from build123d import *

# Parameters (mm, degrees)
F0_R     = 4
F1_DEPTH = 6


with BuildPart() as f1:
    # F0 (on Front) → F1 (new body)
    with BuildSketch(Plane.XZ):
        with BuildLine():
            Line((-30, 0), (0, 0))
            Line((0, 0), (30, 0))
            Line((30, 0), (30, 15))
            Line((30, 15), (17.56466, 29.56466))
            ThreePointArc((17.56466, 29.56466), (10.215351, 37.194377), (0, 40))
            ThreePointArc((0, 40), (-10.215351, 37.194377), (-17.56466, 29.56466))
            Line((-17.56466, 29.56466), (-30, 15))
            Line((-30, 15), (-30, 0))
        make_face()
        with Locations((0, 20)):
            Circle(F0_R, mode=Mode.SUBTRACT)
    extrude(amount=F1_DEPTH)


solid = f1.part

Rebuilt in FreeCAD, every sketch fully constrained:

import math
import FreeCAD as App
import Part
import Sketcher
from FreeCAD import Vector
Q = App.Units.Quantity

doc = App.newDocument("Part")
params = doc.addObject("Spreadsheet::Sheet", "Params")
for row, (alias, value) in enumerate([
    ("sketch1_diameter", "8 mm"),
    ("sketch1_radius", "20.000001 mm"),
    ("sketch1_width", "60 mm"),
    ("sketch1_height", "15 mm"),
    ("pad1_length", "6 mm"),
], start=1):
    params.set(f"A{row}", alias)
    params.set(f"B{row}", "=" + value)
    params.setAlias(f"B{row}", alias)

body = doc.addObject("PartDesign::Body", "Body")

sketch1 = body.newObject("Sketcher::SketchObject", "Sketch")
sketch1.AttachmentSupport = (doc.getObject("XZ_Plane"), [""])
sketch1.MapMode = "FlatFace"
sketch1.addGeometry(Part.LineSegment(Vector(-30, 0, 0), Vector(30, 0, 0)), False)
sketch1.addGeometry(Part.LineSegment(Vector(30, 0, 0), Vector(30, 15, 0)), False)
sketch1.addGeometry(Part.LineSegment(Vector(30, 15, 0), Vector(17.56466, 29.56466, 0)), False)
sketch1.addGeometry(Part.ArcOfCircle(Part.Circle(Vector(0, 19.999999, 0), Vector(0, 0, 1), 20.000001), math.radians(28.570061), math.radians(89.999999)), False)
sketch1.addGeometry(Part.ArcOfCircle(Part.Circle(Vector(0, 19.999999, 0), Vector(0, 0, 1), 20.000001), math.radians(90.000001), math.radians(151.429939)), False)
sketch1.addGeometry(Part.LineSegment(Vector(-17.56466, 29.56466, 0), Vector(-30, 15, 0)), False)
sketch1.addGeometry(Part.LineSegment(Vector(-30, 15, 0), Vector(-30, 0, 0)), False)
sketch1.addGeometry(Part.Circle(Vector(0, 20, 0), Vector(0, 0, 1), 4), False)
sketch1.addConstraint(Sketcher.Constraint("Coincident", 0, 2, 1, 1))
sketch1.addConstraint(Sketcher.Constraint("Coincident", 1, 2, 2, 1))
sketch1.addConstraint(Sketcher.Constraint("Coincident", 2, 2, 3, 1))
sketch1.addConstraint(Sketcher.Constraint("Tangent", 3, 2, 4, 1))
sketch1.addConstraint(Sketcher.Constraint("Coincident", 4, 2, 5, 1))
sketch1.addConstraint(Sketcher.Constraint("Coincident", 5, 2, 6, 1))
sketch1.addConstraint(Sketcher.Constraint("Coincident", 6, 2, 0, 1))
sketch1.addConstraint(Sketcher.Constraint("Horizontal", 0))
sketch1.addConstraint(Sketcher.Constraint("Vertical", 1))
sketch1.addConstraint(Sketcher.Constraint("Vertical", 6))
sketch1.addConstraint(Sketcher.Constraint("Coincident", 7, 3, 3, 3))
sketch1.addConstraint(Sketcher.Constraint("Equal", 3, 4))
sketch1.addConstraint(Sketcher.Constraint("Symmetric", 0, 2, 6, 2, -1, 1))
sketch1.addConstraint(Sketcher.Constraint("Symmetric", 2, 2, 4, 2, -2))
sketch1.addConstraint(Sketcher.Constraint("PointOnObject", 3, 2, -2))
sketch1.addConstraint(Sketcher.Constraint("Horizontal", 1, 2, 5, 2))
sketch1.addConstraint(Sketcher.Constraint("Diameter", 7, Q("8 mm")))
sketch1.addConstraint(Sketcher.Constraint("Radius", 3, Q("20.000001 mm")))
sketch1.addConstraint(Sketcher.Constraint("DistanceX", 0, 1, 0, 2, Q("60 mm")))
sketch1.addConstraint(Sketcher.Constraint("DistanceY", 1, 1, 1, 2, Q("15 mm")))
sketch1.addConstraint(Sketcher.Constraint("DistanceY", -1, 1, 3, 3, Q("19.999999 mm")))
sketch1.addConstraint(Sketcher.Constraint("Distance", 2, Q("19.151162 mm")))
sketch1.setExpression("Constraints[16]", "Params.sketch1_diameter")
sketch1.setExpression("Constraints[17]", "Params.sketch1_radius")
sketch1.setExpression("Constraints[18]", "Params.sketch1_width")
sketch1.setExpression("Constraints[19]", "Params.sketch1_height")
pad1 = body.newObject("PartDesign::Pad", "Pad")
pad1.Profile = sketch1
pad1.setExpression("Length", "Params.pad1_length")

doc.recompute()
